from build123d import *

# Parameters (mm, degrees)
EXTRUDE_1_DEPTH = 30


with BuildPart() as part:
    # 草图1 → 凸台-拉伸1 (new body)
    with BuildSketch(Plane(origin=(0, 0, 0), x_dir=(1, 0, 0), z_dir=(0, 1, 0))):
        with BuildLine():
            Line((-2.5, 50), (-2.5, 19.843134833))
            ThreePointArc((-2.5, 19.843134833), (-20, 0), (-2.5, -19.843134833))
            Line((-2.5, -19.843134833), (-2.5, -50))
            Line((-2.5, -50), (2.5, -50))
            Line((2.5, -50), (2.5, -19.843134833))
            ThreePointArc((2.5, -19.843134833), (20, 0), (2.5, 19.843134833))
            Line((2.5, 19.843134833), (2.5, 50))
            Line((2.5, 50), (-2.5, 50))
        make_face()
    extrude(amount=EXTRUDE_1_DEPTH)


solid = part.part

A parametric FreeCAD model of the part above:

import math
import FreeCAD as App
import Part
import Sketcher
from FreeCAD import Vector
Q = App.Units.Quantity

doc = App.newDocument("Part")
body = doc.addObject("PartDesign::Body", "Body")

sketch1 = doc.addObject("Sketcher::SketchObject", "Sketch")
body.addObject(sketch1)
sketch1.AttachmentSupport = (doc.XZ_Plane, [""])
sketch1.MapMode = "FlatFace"
sketch1.addGeometry([
    Part.LineSegment(Vector(-2.5, -50, 0), Vector(-2.5, -19.843135, 0)),
    Part.ArcOfCircle(Part.Circle(Vector(0, 0, 0), Vector(0, 0, 1), 20), math.radians(97.180756), math.radians(262.819244)),
    Part.LineSegment(Vector(-2.5, 19.843135, 0), Vector(-2.5, 50, 0)),
    Part.LineSegment(Vector(-2.5, 50, 0), Vector(2.5, 50, 0)),
    Part.LineSegment(Vector(2.5, 50, 0), Vector(2.5, 19.843135, 0)),
    Part.ArcOfCircle(Part.Circle(Vector(0, 0, 0), Vector(0, 0, 1), 20), math.radians(-82.819244), math.radians(82.819244)),
    Part.LineSegment(Vector(2.5, -19.843135, 0), Vector(2.5, -50, 0)),
    Part.LineSegment(Vector(2.5, -50, 0), Vector(-2.5, -50, 0)),
], False)
sketch1.addConstraint([
    Sketcher.Constraint("Coincident", 0, 2, 1, 2),
    Sketcher.Constraint("Coincident", 1, 1, 2, 1),
    Sketcher.Constraint("Coincident", 2, 2, 3, 1),
    Sketcher.Constraint("Coincident", 3, 2, 4, 1),
    Sketcher.Constraint("Coincident", 4, 2, 5, 2),
    Sketcher.Constraint("Coincident", 5, 1, 6, 1),
    Sketcher.Constraint("Coincident", 6, 2, 7, 1),
    Sketcher.Constraint("Coincident", 7, 2, 0, 1),
    Sketcher.Constraint("Vertical", 0),
    Sketcher.Constraint("Vertical", 2),
    Sketcher.Constraint("Horizontal", 3),
    Sketcher.Constraint("Vertical", 4),
    Sketcher.Constraint("Vertical", 6),
    Sketcher.Constraint("Horizontal", 7),
    Sketcher.Constraint("Coincident", 1, 3, -1, 1),
    Sketcher.Constraint("Coincident", 5, 3, -1, 1),
    Sketcher.Constraint("Equal", 1, 5),
    Sketcher.Constraint("Symmetric", 2, 2, 6, 2, -1, 1),
    Sketcher.Constraint("Horizontal", 1, 1, 4, 2),
    Sketcher.Constraint("Horizontal", 0, 2, 5, 1),
    Sketcher.Constraint("Radius", 1, Q("20 mm")),
    Sketcher.Constraint("DistanceX", 3, 1, 3, 2, Q("5 mm")),
    Sketcher.Constraint("DistanceY", -1, 1, 2, 2, Q("50 mm")),
])
pad1 = doc.addObject("PartDesign::Pad", "Pad")
body.addObject(pad1)
pad1.Profile = sketch1
pad1.Length = 30
pad1.Reversed = True

doc.recompute()
